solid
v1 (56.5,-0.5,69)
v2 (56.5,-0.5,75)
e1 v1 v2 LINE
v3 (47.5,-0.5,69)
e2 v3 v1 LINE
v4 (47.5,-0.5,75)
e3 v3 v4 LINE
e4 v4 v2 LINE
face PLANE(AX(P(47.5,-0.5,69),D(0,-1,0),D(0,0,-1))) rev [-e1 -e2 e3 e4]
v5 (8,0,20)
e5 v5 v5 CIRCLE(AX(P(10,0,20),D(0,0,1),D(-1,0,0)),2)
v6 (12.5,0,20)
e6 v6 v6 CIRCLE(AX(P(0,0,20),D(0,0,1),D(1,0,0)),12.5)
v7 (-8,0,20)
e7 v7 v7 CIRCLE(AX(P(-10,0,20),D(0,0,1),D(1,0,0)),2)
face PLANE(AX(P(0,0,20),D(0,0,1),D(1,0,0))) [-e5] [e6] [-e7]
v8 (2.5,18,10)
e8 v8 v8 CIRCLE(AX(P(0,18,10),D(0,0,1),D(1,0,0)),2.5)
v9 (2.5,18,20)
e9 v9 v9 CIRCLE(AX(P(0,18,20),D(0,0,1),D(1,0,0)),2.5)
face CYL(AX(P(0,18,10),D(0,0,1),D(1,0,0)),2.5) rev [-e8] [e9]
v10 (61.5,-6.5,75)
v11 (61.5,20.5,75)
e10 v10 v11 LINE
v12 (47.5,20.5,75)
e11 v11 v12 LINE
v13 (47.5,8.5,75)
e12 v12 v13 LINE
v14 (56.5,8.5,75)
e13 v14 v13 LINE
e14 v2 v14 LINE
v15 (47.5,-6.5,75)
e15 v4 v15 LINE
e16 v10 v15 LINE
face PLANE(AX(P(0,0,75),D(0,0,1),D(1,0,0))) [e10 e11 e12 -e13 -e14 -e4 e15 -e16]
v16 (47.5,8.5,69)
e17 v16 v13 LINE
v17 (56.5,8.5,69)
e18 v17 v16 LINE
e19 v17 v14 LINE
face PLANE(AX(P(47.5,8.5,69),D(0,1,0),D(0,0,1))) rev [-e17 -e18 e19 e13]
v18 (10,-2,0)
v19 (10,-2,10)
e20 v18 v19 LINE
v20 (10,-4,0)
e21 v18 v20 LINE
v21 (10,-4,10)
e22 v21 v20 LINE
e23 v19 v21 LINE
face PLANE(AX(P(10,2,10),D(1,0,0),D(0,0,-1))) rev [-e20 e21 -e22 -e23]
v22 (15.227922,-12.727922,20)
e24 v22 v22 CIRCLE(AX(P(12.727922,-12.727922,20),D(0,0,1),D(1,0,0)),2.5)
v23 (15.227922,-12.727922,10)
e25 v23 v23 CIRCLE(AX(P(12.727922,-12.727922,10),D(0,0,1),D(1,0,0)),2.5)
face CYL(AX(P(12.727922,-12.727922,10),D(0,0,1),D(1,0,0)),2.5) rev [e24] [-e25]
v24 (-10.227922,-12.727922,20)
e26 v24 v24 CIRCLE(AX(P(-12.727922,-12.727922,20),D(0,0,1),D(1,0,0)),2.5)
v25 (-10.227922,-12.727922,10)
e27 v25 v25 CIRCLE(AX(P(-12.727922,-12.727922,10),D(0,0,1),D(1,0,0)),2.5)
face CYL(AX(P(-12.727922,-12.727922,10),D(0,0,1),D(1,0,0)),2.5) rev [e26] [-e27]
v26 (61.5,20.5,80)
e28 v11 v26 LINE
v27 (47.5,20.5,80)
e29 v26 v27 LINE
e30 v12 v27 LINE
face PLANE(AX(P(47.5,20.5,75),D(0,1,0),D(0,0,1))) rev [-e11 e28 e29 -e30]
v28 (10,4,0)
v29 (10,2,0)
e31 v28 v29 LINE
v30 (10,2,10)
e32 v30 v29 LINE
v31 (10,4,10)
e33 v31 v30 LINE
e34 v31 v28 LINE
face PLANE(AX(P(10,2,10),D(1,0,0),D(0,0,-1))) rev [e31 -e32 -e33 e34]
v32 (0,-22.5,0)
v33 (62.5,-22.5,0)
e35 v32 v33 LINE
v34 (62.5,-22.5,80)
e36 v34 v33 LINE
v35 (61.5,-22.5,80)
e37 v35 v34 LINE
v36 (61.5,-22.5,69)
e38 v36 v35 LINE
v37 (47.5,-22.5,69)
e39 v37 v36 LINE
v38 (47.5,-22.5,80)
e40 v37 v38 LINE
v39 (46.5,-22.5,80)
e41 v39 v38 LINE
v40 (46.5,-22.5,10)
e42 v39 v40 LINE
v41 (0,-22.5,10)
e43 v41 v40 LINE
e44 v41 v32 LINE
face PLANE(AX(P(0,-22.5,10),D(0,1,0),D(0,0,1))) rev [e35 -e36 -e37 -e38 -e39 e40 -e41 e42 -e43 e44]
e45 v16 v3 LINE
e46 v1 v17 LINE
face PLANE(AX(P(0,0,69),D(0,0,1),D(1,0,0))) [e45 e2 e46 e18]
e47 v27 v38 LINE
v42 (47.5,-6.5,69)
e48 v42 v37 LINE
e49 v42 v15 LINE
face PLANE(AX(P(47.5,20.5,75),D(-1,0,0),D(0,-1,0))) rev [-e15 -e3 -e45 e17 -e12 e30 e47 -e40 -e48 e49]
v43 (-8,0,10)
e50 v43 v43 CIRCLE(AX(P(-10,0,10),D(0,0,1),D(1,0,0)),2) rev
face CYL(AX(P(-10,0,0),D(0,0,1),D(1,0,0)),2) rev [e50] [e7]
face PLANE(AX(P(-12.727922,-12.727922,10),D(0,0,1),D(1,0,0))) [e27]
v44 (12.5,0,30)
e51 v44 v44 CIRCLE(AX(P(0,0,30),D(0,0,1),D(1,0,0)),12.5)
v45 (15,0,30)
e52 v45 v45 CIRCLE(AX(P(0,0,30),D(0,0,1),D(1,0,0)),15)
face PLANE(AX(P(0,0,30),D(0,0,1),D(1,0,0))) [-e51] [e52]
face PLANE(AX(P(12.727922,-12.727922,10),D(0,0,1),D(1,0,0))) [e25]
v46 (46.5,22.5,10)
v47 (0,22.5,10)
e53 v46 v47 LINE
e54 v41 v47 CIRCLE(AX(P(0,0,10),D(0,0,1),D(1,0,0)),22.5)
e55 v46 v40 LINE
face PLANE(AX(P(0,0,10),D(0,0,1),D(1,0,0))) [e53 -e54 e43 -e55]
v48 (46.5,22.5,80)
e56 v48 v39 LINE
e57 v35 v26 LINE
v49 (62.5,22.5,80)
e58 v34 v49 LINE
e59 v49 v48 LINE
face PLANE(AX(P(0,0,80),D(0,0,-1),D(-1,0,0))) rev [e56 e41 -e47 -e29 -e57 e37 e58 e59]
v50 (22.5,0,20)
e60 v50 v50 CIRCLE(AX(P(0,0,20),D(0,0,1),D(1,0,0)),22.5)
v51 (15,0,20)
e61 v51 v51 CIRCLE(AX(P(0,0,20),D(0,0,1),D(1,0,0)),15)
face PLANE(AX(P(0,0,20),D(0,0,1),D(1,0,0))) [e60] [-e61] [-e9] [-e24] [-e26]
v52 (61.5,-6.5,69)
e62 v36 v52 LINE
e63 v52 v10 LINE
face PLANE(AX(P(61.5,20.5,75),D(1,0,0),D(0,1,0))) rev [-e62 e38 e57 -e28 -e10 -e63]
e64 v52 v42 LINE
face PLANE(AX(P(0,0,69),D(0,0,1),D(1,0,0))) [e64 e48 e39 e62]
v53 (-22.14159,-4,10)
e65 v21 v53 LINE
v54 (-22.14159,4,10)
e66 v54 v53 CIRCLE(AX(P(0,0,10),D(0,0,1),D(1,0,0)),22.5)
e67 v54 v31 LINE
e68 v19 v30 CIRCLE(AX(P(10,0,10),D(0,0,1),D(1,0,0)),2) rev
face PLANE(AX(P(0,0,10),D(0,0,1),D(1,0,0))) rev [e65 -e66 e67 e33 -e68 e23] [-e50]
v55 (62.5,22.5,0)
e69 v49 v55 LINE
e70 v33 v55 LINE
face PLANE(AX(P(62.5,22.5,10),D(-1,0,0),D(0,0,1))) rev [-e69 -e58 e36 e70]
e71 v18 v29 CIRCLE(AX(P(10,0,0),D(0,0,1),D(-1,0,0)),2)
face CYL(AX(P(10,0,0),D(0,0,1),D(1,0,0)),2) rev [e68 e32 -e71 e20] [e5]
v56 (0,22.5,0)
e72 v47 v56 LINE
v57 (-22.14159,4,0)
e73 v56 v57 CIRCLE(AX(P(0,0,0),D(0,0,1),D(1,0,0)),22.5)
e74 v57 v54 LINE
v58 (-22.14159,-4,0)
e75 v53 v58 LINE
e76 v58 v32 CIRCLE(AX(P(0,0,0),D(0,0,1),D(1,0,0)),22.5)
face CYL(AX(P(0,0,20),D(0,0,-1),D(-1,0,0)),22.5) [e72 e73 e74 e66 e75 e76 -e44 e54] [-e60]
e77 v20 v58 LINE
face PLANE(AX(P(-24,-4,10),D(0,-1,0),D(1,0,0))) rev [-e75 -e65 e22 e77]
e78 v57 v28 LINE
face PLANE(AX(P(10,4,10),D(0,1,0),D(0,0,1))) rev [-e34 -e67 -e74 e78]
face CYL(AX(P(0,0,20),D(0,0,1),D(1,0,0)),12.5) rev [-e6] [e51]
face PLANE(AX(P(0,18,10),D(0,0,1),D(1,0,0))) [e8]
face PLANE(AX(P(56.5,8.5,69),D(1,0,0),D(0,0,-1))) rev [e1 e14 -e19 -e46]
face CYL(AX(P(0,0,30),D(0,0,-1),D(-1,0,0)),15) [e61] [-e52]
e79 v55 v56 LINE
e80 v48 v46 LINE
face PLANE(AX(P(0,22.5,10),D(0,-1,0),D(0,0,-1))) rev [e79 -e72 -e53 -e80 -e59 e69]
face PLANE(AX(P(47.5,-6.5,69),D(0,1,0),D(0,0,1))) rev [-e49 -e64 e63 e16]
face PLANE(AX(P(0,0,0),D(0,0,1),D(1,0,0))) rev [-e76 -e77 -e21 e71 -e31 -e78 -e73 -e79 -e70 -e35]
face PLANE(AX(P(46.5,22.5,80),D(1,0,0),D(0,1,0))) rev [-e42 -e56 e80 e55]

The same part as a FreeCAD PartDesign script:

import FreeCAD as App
import Part
import Sketcher

doc = App.newDocument("Part")
body = doc.addObject("PartDesign::Body", "Body")

sketch1 = body.newObject("Sketcher::SketchObject", "Sketch")
sketch1.AttachmentSupport = (doc.getObject("XY_Plane"), [""])
sketch1.MapMode = "FlatFace"
sketch1.addGeometry(Part.Circle(App.Vector(0, 0, 0), App.Vector(0, 0, 1), 22), False)
sketch1.addConstraint(Sketcher.Constraint("Coincident", 0, 3, -1, 1))
sketch1.addConstraint(Sketcher.Constraint("Diameter", 0, 45.0))
pad1 = body.newObject("PartDesign::Pad", "Pad")
pad1.Profile = sketch1
pad1.Length = 20

sketch2 = body.newObject("Sketcher::SketchObject", "Sketch001")
sketch2.AttachmentSupport = (doc.getObject("XY_Plane"), [""])
sketch2.MapMode = "FlatFace"
sketch2.addGeometry(Part.LineSegment(App.Vector(0, 22, 0), App.Vector(0, -22, 0)), False)
sketch2.addGeometry(Part.LineSegment(App.Vector(0, -22, 0), App.Vector(62, -22, 0)), False)
sketch2.addGeometry(Part.LineSegment(App.Vector(62, -22, 0), App.Vector(62, 22, 0)), False)
sketch2.addGeometry(Part.LineSegment(App.Vector(62, 22, 0), App.Vector(0, 22, 0)), False)
sketch2.addConstraint(Sketcher.Constraint("Coincident", 0, 2, 1, 1))
sketch2.addConstraint(Sketcher.Constraint("Coincident", 1, 2, 2, 1))
sketch2.addConstraint(Sketcher.Constraint("Coincident", 2, 2, 3, 1))
sketch2.addConstraint(Sketcher.Constraint("Coincident", 3, 2, 0, 1))
sketch2.addConstraint(Sketcher.Constraint("Vertical", 0))
sketch2.addConstraint(Sketcher.Constraint("Horizontal", 1))
sketch2.addConstraint(Sketcher.Constraint("Vertical", 2))
sketch2.addConstraint(Sketcher.Constraint("Horizontal", 3))
sketch2.addConstraint(Sketcher.Constraint("Symmetric", 0, 2, 3, 2, -1, 1))
sketch2.addConstraint(Sketcher.Constraint("DistanceY", 0, 2, 0, 1, 45.0))
sketch2.addConstraint(Sketcher.Constraint("DistanceX", 1, 1, 1, 2, 62.5))
pad2 = body.newObject("PartDesign::Pad", "Pad001")
pad2.Profile = sketch2
pad2.Length = 10

sketch3 = body.newObject("Sketcher::SketchObject", "Sketch002")
sketch3.AttachmentSupport = (doc.getObject("XY_Plane"), [""])
sketch3.MapMode = "FlatFace"
sketch3.AttachmentOffset = App.Placement(App.Vector(0, 0, 20), App.Rotation())
sketch3.addGeometry(Part.Circle(App.Vector(0, 0, 0), App.Vector(0, 0, 1), 15), False)
sketch3.addConstraint(Sketcher.Constraint("Coincident", 0, 3, -1, 1))
sketch3.addConstraint(Sketcher.Constraint("Diameter", 0, 30.0))
pad3 = body.newObject("PartDesign::Pad", "Pad002")
pad3.Profile = sketch3
pad3.Length = 10

sketch4 = body.newObject("Sketcher::SketchObject", "Sketch003")
sketch4.AttachmentSupport = (doc.getObject("XY_Plane"), [""])
sketch4.MapMode = "FlatFace"
sketch4.AttachmentOffset = App.Placement(App.Vector(0, 0, 30), App.Rotation())
sketch4.addGeometry(Part.Circle(App.Vector(0, 0, 0), App.Vector(0, 0, 1), 12), False)
sketch4.addConstraint(Sketcher.Constraint("Coincident", 0, 3, -1, 1))
sketch4.addConstraint(Sketcher.Constraint("Diameter", 0, 25.0))
pocket1 = body.newObject("PartDesign::Pocket", "Pocket")
pocket1.Profile = sketch4
pocket1.Length = 10

sketch5 = body.newObject("Sketcher::SketchObject", "Sketch004")
sketch5.AttachmentSupport = (doc.getObject("XY_Plane"), [""])
sketch5.MapMode = "FlatFace"
sketch5.AttachmentOffset = App.Placement(App.Vector(0, 0, 20), App.Rotation())
sketch5.addGeometry(Part.Circle(App.Vector(-10, 0, 0), App.Vector(0, 0, 1), 2), False)
sketch5.addGeometry(Part.Circle(App.Vector(10, 0, 0), App.Vector(0, 0, 1), 2), False)
sketch5.addConstraint(Sketcher.Constraint("Equal", 0, 1))
sketch5.addConstraint(Sketcher.Constraint("Symmetric", 0, 3, 1, 3, -1, 1))
sketch5.addConstraint(Sketcher.Constraint("PointOnObject", 0, 3, -1))
sketch5.addConstraint(Sketcher.Constraint("Diameter", 0, 4.0))
sketch5.addConstraint(Sketcher.Constraint("DistanceX", 0, 3, -1, 1, 10.0))
pocket2 = body.newObject("PartDesign::Pocket", "Pocket001")
pocket2.Profile = sketch5
pocket2.Type = "ThroughAll"

sketch6 = body.newObject("Sketcher::SketchObject", "Sketch005")
sketch6.AttachmentSupport = (doc.getObject("XY_Plane"), [""])
sketch6.MapMode = "FlatFace"
sketch6.AttachmentOffset = App.Placement(App.Vector(0, 0, 20), App.Rotation())
sketch6.addGeometry(Part.Circle(App.Vector(0, 18, 0), App.Vector(0, 0, 1), 2.5), False)
sketch6.addGeometry(Part.Circle(App.Vector(-12.7, -12.7, 0), App.Vector(0, 0, 1), 2.5), False)
sketch6.addGeometry(Part.Circle(App.Vector(12.7, -12.7, 0), App.Vector(0, 0, 1), 2.5), False)
sketch6.addConstraint(Sketcher.Constraint("Equal", 0, 1))
sketch6.addConstraint(Sketcher.Constraint("Equal", 1, 2))
sketch6.addConstraint(Sketcher.Constraint("Symmetric", 1, 3, 2, 3, -2))
sketch6.addConstraint(Sketcher.Constraint("PointOnObject", 0, 3, -2))
sketch6.addConstraint(Sketcher.Constraint("Diameter", 0, 5.0))
sketch6.addConstraint(Sketcher.Constraint("DistanceY", -1, 1, 0, 3, 18.0))
sketch6.addConstraint(Sketcher.Constraint("DistanceX", 1, 3, -1, 1, 12.727922))
sketch6.addConstraint(Sketcher.Constraint("DistanceY", 1, 3, -1, 1, 12.727922))
pocket3 = body.newObject("PartDesign::Pocket", "Pocket002")
pocket3.Profile = sketch6
pocket3.Length = 10

sketch7 = body.newObject("Sketcher::SketchObject", "Sketch006")
sketch7.AttachmentSupport = (doc.getObject("XY_Plane"), [""])
sketch7.MapMode = "FlatFace"
sketch7.AttachmentOffset = App.Placement(App.Vector(0, 0, 10), App.Rotation())
sketch7.addGeometry(Part.LineSegment(App.Vector(46, 22, 0), App.Vector(46, -22, 0)), False)
sketch7.addGeometry(Part.LineSegment(App.Vector(46, -22, 0), App.Vector(62, -22, 0)), False)
sketch7.addGeometry(Part.LineSegment(App.Vector(62, -22, 0), App.Vector(62, 22, 0)), False)
sketch7.addGeometry(Part.LineSegment(App.Vector(62, 22, 0), App.Vector(46, 22, 0)), False)
sketch7.addConstraint(Sketcher.Constraint("Coincident", 0, 2, 1, 1))
sketch7.addConstraint(Sketcher.Constraint("Coincident", 1, 2, 2, 1))
sketch7.addConstraint(Sketcher.Constraint("Coincident", 2, 2, 3, 1))
sketch7.addConstraint(Sketcher.Constraint("Coincident", 3, 2, 0, 1))
sketch7.addConstraint(Sketcher.Constraint("Vertical", 0))
sketch7.addConstraint(Sketcher.Constraint("Horizontal", 1))
sketch7.addConstraint(Sketcher.Constraint("Vertical", 2))
sketch7.addConstraint(Sketcher.Constraint("Horizontal", 3))
sketch7.addConstraint(Sketcher.Constraint("DistanceX", 1, 1, 1, 2, 16.0))
sketch7.addConstraint(Sketcher.Constraint("DistanceY", 0, 2, 0, 1, 45.0))
sketch7.addConstraint(Sketcher.Constraint("DistanceX", -1, 1, 0, 2, 46.5))
sketch7.addConstraint(Sketcher.Constraint("DistanceY", 0, 2, -1, 1, 22.5))
pad4 = body.newObject("PartDesign::Pad", "Pad003")
pad4.Profile = sketch7
pad4.Length = 70

sketch8 = body.newObject("Sketcher::SketchObject", "Sketch007")
sketch8.AttachmentSupport = (doc.getObject("XY_Plane"), [""])
sketch8.MapMode = "FlatFace"
sketch8.AttachmentOffset = App.Placement(App.Vector(0, 0, 80), App.Rotation())
sketch8.addGeometry(Part.LineSegment(App.Vector(48, 20, 0), App.Vector(48, -22, 0)), False)
sketch8.addGeometry(Part.LineSegment(App.Vector(48, -22, 0), App.Vector(62, -22, 0)), False)
sketch8.addGeometry(Part.LineSegment(App.Vector(62, -22, 0), App.Vector(62, 20, 0)), False)
sketch8.addGeometry(Part.LineSegment(App.Vector(62, 20, 0), App.Vector(48, 20, 0)), False)
sketch8.addConstraint(Sketcher.Constraint("Coincident", 0, 2, 1, 1))
sketch8.addConstraint(Sketcher.Constraint("Coincident", 1, 2, 2, 1))
sketch8.addConstraint(Sketcher.Constraint("Coincident", 2, 2, 3, 1))
sketch8.addConstraint(Sketcher.Constraint("Coincident", 3, 2, 0, 1))
sketch8.addConstraint(Sketcher.Constraint("Vertical", 0))
sketch8.addConstraint(Sketcher.Constraint("Horizontal", 1))
sketch8.addConstraint(Sketcher.Constraint("Vertical", 2))
sketch8.addConstraint(Sketcher.Constraint("Horizontal", 3))
sketch8.addConstraint(Sketcher.Constraint("DistanceX", 1, 1, 1, 2, 14.0))
sketch8.addConstraint(Sketcher.Constraint("DistanceY", 0, 2, 0, 1, 43.0))
sketch8.addConstraint(Sketcher.Constraint("DistanceX", -1, 1, 0, 2, 47.5))
sketch8.addConstraint(Sketcher.Constraint("DistanceY", 0, 2, -1, 1, 22.5))
pocket4 = body.newObject("PartDesign::Pocket", "Pocket003")
pocket4.Profile = sketch8
pocket4.Length = 5

sketch9 = body.newObject("Sketcher::SketchObject", "Sketch008")
sketch9.AttachmentSupport = (doc.getObject("XY_Plane"), [""])
sketch9.MapMode = "FlatFace"
sketch9.AttachmentOffset = App.Placement(App.Vector(0, 0, 75), App.Rotation())
sketch9.addGeometry(Part.LineSegment(App.Vector(48, 8, 0), App.Vector(48, 0, 0)), False)
sketch9.addGeometry(Part.LineSegment(App.Vector(48, 0, 0), App.Vector(56, 0, 0)), False)
sketch9.addGeometry(Part.LineSegment(App.Vector(56, 0, 0), App.Vector(56, 8, 0)), False)
sketch9.addGeometry(Part.LineSegment(App.Vector(56, 8, 0), App.Vector(48, 8, 0)), False)
sketch9.addGeometry(Part.LineSegment(App.Vector(48, -6, 0), App.Vector(48, -22, 0)), False)
sketch9.addGeometry(Part.LineSegment(App.Vector(48, -22, 0), App.Vector(62, -22, 0)), False)
sketch9.addGeometry(Part.LineSegment(App.Vector(62, -22, 0), App.Vector(62, -6, 0)), False)
sketch9.addGeometry(Part.LineSegment(App.Vector(62, -6, 0), App.Vector(48, -6, 0)), False)
sketch9.addConstraint(Sketcher.Constraint("Coincident", 0, 2, 1, 1))
sketch9.addConstraint(Sketcher.Constraint("Coincident", 1, 2, 2, 1))
sketch9.addConstraint(Sketcher.Constraint("Coincident", 2, 2, 3, 1))
sketch9.addConstraint(Sketcher.Constraint("Coincident", 3, 2, 0, 1))
sketch9.addConstraint(Sketcher.Constraint("Coincident", 4, 2, 5, 1))
sketch9.addConstraint(Sketcher.Constraint("Coincident", 5, 2, 6, 1))
sketch9.addConstraint(Sketcher.Constraint("Coincident", 6, 2, 7, 1))
sketch9.addConstraint(Sketcher.Constraint("Coincident", 7, 2, 4, 1))
sketch9.addConstraint(Sketcher.Constraint("Vertical", 0))
sketch9.addConstraint(Sketcher.Constraint("Horizontal", 1))
sketch9.addConstraint(Sketcher.Constraint("Vertical", 2))
sketch9.addConstraint(Sketcher.Constraint("Horizontal", 3))
sketch9.addConstraint(Sketcher.Constraint("Vertical", 4))
sketch9.addConstraint(Sketcher.Constraint("Horizontal", 5))
sketch9.addConstraint(Sketcher.Constraint("Vertical", 6))
sketch9.addConstraint(Sketcher.Constraint("Horizontal", 7))
sketch9.addConstraint(Sketcher.Constraint("Vertical", 3, 2, 4, 2))
sketch9.addConstraint(Sketcher.Constraint("Equal", 3, 0))
sketch9.addConstraint(Sketcher.Constraint("DistanceX", 1, 1, 1, 2, 9.0))
sketch9.addConstraint(Sketcher.Constraint("DistanceX", 5, 1, 5, 2, 14.0))
sketch9.addConstraint(Sketcher.Constraint("DistanceY", 4, 2, 4, 1, 16.0))
sketch9.addConstraint(Sketcher.Constraint("DistanceY", 4, 2, 0, 2, 22.0))
sketch9.addConstraint(Sketcher.Constraint("DistanceX", -1, 1, 0, 2, 47.5))
sketch9.addConstraint(Sketcher.Constraint("DistanceY", 0, 2, -1, 1, 0.5))
pocket5 = body.newObject("PartDesign::Pocket", "Pocket004")
pocket5.Profile = sketch9
pocket5.Length = 6

sketch10 = body.newObject("Sketcher::SketchObject", "Sketch009")
sketch10.AttachmentSupport = (doc.getObject("XY_Plane"), [""])
sketch10.MapMode = "FlatFace"
sketch10.addGeometry(Part.LineSegment(App.Vector(10, 4, 0), App.Vector(10, -4, 0)), False)
sketch10.addGeometry(Part.LineSegment(App.Vector(10, -4, 0), App.Vector(-24, -4, 0)), False)
sketch10.addGeometry(Part.LineSegment(App.Vector(-24, -4, 0), App.Vector(-24, 4, 0)), False)
sketch10.addGeometry(Part.LineSegment(App.Vector(-24, 4, 0), App.Vector(10, 4, 0)), False)
sketch10.addConstraint(Sketcher.Constraint("Coincident", 0, 2, 1, 1))
sketch10.addConstraint(Sketcher.Constraint("Coincident", 1, 2, 2, 1))
sketch10.addConstraint(Sketcher.Constraint("Coincident", 2, 2, 3, 1))
sketch10.addConstraint(Sketcher.Constraint("Coincident", 3, 2, 0, 1))
sketch10.addConstraint(Sketcher.Constraint("Vertical", 0))
sketch10.addConstraint(Sketcher.Constraint("Horizontal", 1))
sketch10.addConstraint(Sketcher.Constraint("Vertical", 2))
sketch10.addConstraint(Sketcher.Constraint("Horizontal", 3))
sketch10.addConstraint(Sketcher.Constraint("DistanceX", 1, 2, 1, 1, 34.0))
sketch10.addConstraint(Sketcher.Constraint("DistanceY", 0, 2, 0, 1, 8.0))
sketch10.addConstraint(Sketcher.Constraint("DistanceX", -1, 1, 0, 2, 10.0))
sketch10.addConstraint(Sketcher.Constraint("DistanceY", 0, 2, -1, 1, 4.0))
pocket6 = body.newObject("PartDesign::Pocket", "Pocket005")
pocket6.Profile = sketch10
pocket6.Length = 10
pocket6.Reversed = True

doc.recompute()
